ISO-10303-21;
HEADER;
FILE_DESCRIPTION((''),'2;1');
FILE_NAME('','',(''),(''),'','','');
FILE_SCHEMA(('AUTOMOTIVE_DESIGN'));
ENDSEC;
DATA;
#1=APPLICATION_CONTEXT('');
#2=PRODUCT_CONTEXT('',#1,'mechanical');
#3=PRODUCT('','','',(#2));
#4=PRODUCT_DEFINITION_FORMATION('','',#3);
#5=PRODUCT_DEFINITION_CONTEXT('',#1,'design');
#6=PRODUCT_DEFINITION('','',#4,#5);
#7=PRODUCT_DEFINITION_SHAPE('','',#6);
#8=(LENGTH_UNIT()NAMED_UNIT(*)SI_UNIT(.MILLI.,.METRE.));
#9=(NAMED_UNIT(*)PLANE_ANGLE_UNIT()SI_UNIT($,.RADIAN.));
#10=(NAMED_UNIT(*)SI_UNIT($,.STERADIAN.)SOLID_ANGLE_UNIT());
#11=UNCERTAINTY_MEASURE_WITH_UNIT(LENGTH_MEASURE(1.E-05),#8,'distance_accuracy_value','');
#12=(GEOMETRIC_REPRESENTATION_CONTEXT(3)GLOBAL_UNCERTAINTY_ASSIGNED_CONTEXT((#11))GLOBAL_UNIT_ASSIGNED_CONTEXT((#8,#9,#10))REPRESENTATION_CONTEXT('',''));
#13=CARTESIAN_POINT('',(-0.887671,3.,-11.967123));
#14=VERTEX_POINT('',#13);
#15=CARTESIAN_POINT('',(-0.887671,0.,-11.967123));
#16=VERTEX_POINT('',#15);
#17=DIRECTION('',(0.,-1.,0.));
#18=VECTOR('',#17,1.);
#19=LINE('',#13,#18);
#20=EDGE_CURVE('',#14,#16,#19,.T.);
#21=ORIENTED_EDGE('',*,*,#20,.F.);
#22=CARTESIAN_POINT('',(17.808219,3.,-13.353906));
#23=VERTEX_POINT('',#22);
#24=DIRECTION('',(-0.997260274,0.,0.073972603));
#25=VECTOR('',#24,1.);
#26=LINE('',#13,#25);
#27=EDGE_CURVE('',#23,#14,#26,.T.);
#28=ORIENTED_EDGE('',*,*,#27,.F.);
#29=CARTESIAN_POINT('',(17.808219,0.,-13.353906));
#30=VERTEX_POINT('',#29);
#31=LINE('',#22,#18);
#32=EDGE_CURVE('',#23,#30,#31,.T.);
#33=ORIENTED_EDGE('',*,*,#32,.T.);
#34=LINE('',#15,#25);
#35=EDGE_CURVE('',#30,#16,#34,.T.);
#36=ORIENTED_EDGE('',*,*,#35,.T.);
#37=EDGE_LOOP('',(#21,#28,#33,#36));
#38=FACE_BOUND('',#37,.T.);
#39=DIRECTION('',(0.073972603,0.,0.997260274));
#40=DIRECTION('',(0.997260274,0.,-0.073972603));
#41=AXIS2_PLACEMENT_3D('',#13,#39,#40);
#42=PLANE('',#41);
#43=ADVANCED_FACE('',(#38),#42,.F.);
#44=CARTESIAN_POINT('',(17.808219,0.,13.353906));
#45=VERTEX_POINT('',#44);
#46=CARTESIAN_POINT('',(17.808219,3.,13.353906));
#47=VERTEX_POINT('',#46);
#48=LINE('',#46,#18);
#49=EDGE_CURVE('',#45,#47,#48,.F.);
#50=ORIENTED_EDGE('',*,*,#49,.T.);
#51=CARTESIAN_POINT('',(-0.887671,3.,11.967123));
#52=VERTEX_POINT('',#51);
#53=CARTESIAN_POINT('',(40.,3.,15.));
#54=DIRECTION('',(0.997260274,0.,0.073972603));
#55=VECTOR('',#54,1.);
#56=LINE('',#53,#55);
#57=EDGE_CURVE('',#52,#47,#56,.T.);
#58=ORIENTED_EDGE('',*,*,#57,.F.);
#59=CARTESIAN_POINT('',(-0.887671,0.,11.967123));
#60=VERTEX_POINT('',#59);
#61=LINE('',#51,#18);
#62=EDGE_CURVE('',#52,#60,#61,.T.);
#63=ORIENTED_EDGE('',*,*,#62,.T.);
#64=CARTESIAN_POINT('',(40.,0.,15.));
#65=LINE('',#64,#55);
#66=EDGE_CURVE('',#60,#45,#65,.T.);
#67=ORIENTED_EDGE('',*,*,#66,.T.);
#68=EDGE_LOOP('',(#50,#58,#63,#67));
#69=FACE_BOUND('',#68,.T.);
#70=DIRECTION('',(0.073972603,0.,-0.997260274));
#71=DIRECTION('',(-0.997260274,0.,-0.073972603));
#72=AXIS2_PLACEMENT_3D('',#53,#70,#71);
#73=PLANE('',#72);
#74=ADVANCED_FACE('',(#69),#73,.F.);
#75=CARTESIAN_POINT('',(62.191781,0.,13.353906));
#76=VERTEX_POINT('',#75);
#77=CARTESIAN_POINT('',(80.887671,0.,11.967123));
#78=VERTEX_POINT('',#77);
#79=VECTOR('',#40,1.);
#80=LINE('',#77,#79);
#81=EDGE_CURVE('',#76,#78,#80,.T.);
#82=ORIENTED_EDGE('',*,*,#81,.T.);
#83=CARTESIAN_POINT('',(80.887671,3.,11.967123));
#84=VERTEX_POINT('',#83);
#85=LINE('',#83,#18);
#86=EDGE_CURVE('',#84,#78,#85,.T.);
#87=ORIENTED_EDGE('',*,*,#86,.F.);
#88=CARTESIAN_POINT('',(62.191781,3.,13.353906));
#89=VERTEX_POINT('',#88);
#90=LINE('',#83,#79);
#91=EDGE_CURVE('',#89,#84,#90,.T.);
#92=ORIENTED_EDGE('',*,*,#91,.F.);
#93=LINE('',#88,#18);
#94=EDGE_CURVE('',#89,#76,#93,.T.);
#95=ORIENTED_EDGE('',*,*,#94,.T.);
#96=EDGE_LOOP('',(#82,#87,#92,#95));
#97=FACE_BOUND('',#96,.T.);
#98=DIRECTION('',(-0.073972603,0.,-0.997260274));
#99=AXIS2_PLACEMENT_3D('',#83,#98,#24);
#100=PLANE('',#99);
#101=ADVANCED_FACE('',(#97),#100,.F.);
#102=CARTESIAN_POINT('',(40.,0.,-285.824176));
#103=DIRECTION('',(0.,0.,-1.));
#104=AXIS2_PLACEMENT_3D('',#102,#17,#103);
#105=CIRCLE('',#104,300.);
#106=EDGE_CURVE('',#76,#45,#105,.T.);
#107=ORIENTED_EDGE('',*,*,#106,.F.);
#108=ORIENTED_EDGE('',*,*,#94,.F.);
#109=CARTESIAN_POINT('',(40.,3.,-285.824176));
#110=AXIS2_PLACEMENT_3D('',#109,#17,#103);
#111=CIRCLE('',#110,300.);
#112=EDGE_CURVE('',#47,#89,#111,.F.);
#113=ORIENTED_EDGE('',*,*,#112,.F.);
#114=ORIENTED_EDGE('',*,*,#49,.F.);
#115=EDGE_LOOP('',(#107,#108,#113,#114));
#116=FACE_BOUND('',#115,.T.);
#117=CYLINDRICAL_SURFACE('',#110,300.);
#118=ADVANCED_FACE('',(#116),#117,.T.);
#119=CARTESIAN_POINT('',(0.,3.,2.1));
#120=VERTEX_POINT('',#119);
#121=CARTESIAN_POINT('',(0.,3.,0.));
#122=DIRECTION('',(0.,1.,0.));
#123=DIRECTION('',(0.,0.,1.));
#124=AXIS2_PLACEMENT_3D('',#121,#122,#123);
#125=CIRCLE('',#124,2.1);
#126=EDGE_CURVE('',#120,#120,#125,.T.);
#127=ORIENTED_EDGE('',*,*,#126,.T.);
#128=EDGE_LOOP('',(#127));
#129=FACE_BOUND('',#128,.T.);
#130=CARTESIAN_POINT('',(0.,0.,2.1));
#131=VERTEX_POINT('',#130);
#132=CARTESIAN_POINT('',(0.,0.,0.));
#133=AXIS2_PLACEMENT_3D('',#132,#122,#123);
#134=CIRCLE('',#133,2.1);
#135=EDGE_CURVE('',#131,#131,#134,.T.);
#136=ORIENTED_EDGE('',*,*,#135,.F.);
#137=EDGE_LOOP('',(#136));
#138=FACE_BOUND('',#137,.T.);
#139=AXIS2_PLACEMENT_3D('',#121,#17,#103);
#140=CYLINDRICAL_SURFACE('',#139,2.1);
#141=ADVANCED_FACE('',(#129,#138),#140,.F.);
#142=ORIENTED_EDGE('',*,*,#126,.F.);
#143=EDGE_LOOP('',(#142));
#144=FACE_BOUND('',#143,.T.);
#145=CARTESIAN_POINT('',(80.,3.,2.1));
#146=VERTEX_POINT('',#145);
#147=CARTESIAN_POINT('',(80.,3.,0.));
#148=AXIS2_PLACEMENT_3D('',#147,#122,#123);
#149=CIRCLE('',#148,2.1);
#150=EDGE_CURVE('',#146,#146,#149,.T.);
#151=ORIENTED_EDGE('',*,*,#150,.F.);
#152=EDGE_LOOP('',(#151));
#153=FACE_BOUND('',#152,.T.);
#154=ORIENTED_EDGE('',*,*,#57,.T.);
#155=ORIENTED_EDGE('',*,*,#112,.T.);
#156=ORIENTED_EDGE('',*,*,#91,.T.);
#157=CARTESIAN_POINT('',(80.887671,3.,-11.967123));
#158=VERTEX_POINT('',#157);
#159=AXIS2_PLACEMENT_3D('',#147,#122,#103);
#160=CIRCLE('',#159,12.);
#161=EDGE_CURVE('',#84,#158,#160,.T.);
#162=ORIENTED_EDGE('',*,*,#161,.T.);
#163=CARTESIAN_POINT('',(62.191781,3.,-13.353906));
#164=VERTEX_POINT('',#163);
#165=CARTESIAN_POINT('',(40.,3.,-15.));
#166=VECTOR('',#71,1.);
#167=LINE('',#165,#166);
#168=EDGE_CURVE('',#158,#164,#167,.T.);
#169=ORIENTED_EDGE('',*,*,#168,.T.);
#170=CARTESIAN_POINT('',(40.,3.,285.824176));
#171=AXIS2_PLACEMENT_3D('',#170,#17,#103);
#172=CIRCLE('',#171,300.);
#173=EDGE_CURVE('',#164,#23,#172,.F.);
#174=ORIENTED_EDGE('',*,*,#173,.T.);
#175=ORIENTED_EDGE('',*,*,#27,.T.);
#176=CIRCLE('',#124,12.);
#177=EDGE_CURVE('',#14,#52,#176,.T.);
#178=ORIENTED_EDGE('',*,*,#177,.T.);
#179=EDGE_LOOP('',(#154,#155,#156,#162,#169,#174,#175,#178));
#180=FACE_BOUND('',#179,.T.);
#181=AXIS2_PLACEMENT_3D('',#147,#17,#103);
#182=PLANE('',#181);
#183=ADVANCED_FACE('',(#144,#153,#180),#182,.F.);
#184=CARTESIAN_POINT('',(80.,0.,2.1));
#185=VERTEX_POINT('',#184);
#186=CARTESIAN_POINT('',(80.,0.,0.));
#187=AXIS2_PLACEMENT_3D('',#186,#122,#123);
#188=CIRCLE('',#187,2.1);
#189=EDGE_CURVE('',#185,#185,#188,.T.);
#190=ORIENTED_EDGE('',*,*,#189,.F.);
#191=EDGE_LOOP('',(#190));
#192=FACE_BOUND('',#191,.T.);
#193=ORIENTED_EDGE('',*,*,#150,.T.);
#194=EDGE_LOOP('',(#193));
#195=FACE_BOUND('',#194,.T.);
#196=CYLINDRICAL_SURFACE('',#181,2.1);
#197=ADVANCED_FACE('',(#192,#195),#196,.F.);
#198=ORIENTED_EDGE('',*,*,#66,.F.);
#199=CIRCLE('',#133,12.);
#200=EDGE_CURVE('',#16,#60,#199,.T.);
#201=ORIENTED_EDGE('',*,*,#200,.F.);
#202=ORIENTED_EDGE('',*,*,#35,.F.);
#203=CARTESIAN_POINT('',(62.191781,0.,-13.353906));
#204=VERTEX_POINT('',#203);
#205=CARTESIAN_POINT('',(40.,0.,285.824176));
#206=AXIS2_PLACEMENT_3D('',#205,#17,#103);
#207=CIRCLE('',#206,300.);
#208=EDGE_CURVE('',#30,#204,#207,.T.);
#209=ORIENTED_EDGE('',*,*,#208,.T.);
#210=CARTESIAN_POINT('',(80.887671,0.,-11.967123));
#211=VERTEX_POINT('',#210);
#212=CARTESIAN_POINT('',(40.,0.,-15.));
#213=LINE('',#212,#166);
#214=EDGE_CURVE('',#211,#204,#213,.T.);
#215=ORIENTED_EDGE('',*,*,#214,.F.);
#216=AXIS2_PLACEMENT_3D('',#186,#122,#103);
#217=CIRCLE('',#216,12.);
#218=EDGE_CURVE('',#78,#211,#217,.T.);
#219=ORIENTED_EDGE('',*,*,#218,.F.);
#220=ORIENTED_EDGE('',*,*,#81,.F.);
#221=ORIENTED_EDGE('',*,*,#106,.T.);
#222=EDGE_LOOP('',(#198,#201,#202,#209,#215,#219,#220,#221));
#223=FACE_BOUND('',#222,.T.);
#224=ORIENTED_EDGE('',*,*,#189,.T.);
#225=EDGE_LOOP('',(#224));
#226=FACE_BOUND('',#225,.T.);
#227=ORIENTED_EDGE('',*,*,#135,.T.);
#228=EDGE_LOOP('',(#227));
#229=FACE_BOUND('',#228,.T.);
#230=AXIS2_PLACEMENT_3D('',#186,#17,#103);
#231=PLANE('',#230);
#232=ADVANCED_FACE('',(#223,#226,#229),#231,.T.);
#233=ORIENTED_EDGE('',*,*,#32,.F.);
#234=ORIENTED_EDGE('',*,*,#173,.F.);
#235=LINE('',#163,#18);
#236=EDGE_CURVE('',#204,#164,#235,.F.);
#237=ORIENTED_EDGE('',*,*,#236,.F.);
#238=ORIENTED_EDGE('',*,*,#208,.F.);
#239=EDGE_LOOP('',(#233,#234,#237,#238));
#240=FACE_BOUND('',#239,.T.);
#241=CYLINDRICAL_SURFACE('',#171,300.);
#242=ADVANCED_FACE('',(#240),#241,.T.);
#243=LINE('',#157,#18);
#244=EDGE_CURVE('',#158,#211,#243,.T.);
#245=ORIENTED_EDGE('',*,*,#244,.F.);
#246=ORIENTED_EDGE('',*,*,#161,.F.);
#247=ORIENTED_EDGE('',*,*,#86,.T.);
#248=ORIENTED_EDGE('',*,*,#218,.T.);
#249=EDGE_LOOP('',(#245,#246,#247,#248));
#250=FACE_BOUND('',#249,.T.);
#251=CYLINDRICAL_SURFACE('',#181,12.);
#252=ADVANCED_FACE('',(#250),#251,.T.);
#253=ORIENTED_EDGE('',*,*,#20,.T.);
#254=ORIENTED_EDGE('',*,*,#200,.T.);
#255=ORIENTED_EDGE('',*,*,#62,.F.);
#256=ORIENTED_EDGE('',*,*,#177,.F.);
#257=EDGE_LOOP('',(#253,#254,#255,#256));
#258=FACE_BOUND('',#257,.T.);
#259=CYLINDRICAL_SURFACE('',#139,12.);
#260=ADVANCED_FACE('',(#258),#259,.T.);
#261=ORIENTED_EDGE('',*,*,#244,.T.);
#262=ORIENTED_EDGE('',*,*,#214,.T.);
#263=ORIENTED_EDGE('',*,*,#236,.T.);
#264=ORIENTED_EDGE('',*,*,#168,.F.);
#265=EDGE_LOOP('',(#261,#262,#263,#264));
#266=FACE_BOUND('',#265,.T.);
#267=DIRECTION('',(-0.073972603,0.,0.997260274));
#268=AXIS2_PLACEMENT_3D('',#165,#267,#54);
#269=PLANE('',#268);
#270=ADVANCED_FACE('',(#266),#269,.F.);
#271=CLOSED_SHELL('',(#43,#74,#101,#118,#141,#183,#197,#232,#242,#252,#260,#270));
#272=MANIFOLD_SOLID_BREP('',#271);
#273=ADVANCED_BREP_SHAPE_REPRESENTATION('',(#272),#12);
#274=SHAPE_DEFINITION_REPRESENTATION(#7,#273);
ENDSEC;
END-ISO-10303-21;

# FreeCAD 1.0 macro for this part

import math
import FreeCAD as App
import Part
import Sketcher


def edges_at(feature, points):
    """Names of the edges that pass closest to the given points."""
    edges = feature.Shape.Edges
    near = lambda p: min(range(len(edges)), key=lambda i: edges[i].distToShape(Part.Vertex(*p))[0])
    return sorted({f"Edge{near(p) + 1}" for p in points})

doc = App.newDocument("Part")
params = doc.addObject("Spreadsheet::Sheet", "Params")
for row, (alias, value) in enumerate([
    ("sketch1_radius", "12 mm"),
    ("sketch1_diameter", "4.2 mm"),
    ("sketch1_length", "41 mm"),
    ("pad1_length", "3 mm"),
    ("fillet_radius", "300 mm"),
], start=1):
    params.set(f"A{row}", alias)
    params.set(f"B{row}", "=" + value)
    params.setAlias(f"B{row}", alias)

body = doc.addObject("PartDesign::Body", "Body")

sketch1 = body.newObject("Sketcher::SketchObject", "Sketch")
sketch1.AttachmentSupport = (doc.getObject("XZ_Plane"), [""])
sketch1.MapMode = "FlatFace"
sketch1.addGeometry(Part.LineSegment(App.Vector(40, -15, 0), App.Vector(-0.887671, -11.967123, 0)), False)
sketch1.addGeometry(Part.ArcOfCircle(Part.Circle(App.Vector(0, 0, 0), App.Vector(0, 0, 1), 12), math.radians(94.242193), math.radians(265.757807)), False)
sketch1.addGeometry(Part.LineSegment(App.Vector(-0.887671, 11.967123, 0), App.Vector(40, 15, 0)), False)
sketch1.addGeometry(Part.LineSegment(App.Vector(40, 15, 0), App.Vector(80.887671, 11.967123, 0)), False)
sketch1.addGeometry(Part.ArcOfCircle(Part.Circle(App.Vector(80, 0, 0), App.Vector(0, 0, 1), 12), math.radians(-85.757807), math.radians(85.757807)), False)
sketch1.addGeometry(Part.LineSegment(App.Vector(80.887671, -11.967123, 0), App.Vector(40, -15, 0)), False)
sketch1.addGeometry(Part.Circle(App.Vector(80, 0, 0), App.Vector(0, 0, 1), 2.1), False)
sketch1.addGeometry(Part.Circle(App.Vector(0, 0, 0), App.Vector(0, 0, 1), 2.1), False)
sketch1.addConstraint(Sketcher.Constraint("Tangent", 0, 2, 1, 2))
sketch1.addConstraint(Sketcher.Constraint("Tangent", 1, 1, 2, 1))
sketch1.addConstraint(Sketcher.Constraint("Coincident", 2, 2, 3, 1))
sketch1.addConstraint(Sketcher.Constraint("Tangent", 3, 2, 4, 2))
sketch1.addConstraint(Sketcher.Constraint("Tangent", 4, 1, 5, 1))
sketch1.addConstraint(Sketcher.Constraint("Coincident", 5, 2, 0, 1))
sketch1.addConstraint(Sketcher.Constraint("Coincident", 1, 3, -1, 1))
sketch1.addConstraint(Sketcher.Constraint("Coincident", 7, 3, -1, 1))
sketch1.addConstraint(Sketcher.Constraint("Coincident", 6, 3, 4, 3))
sketch1.addConstraint(Sketcher.Constraint("Equal", 1, 4))
sketch1.addConstraint(Sketcher.Constraint("Equal", 6, 7))
sketch1.addConstraint(Sketcher.Constraint("Symmetric", 3, 2, 4, 1, -1))
sketch1.addConstraint(Sketcher.Constraint("Parallel", 0, 3))
sketch1.addConstraint(Sketcher.Constraint("Parallel", 2, 5))
sketch1.addConstraint(Sketcher.Constraint("Radius", 1, 12.0))
sketch1.addConstraint(Sketcher.Constraint("Diameter", 6, 4.2))
sketch1.addConstraint(Sketcher.Constraint("Distance", 0, 41.0))
sketch1.addConstraint(Sketcher.Constraint("DistanceX", -1, 1, 4, 3, 80.0))
sketch1.setExpression("Constraints[14]", "Params.sketch1_radius")
sketch1.setExpression("Constraints[15]", "Params.sketch1_diameter")
sketch1.setExpression("Constraints[16]", "Params.sketch1_length")
pad1 = body.newObject("PartDesign::Pad", "Pad")
pad1.Profile = sketch1
pad1.setExpression("Length", "Params.pad1_length")
pad1.Reversed = True
doc.recompute()

fillet = body.newObject("PartDesign::Fillet", "Fillet")
fillet.Base = (pad1, edges_at(pad1, [(40, 1.5, 15), (40, 1.5, -15)]))
fillet.setExpression("Radius", "Params.fillet_radius")

doc.recompute()
